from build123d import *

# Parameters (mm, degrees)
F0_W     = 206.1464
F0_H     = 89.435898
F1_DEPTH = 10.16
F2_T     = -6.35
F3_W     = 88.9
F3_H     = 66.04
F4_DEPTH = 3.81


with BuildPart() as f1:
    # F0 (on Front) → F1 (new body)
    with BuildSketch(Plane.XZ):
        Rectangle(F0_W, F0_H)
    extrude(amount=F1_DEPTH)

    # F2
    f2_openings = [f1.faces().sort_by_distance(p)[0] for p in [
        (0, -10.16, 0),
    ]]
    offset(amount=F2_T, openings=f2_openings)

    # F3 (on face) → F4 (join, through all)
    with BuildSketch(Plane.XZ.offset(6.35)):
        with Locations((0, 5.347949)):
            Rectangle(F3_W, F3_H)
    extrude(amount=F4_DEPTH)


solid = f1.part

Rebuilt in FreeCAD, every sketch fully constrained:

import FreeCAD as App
import Part
import Sketcher

V = App.Vector
Q = App.Units.Quantity


def faces_at(feature, points):
    """Names of the faces that lie closest to the given points."""
    faces = feature.Shape.Faces
    near = lambda p: min(range(len(faces)), key=lambda i: faces[i].distToShape(Part.Vertex(*p))[0])
    return sorted({f"Face{near(p) + 1}" for p in points})

doc = App.newDocument("Part")
params = doc.addObject("Spreadsheet::Sheet", "Params")
for row, (alias, value) in enumerate([
    ("sketch1_width", "8.116 in"),
    ("pad1_length", "0.4 in"),
    ("thickness_wall", "0.25 in"),
    ("sketch2_width", "3.5 in"),
    ("sketch2_height", "2.6 in"),
    ("pad2_length", "0.15 in"),
], start=1):
    params.set(f"A{row}", alias)
    params.set(f"B{row}", "=" + value)
    params.setAlias(f"B{row}", alias)

body = doc.addObject("PartDesign::Body", "Body")

# Sketch on XZ plane
sketch1 = body.newObject("Sketcher::SketchObject", "Sketch")
sketch1.AttachmentSupport = (doc.getObject("XZ_Plane"), [""])
sketch1.MapMode = "FlatFace"
sketch1.addGeometry([
    Part.LineSegment(V(-103, 45, 0), V(-103, -45, 0)),
    Part.LineSegment(V(-103, -45, 0), V(103, -45, 0)),
    Part.LineSegment(V(103, -45, 0), V(103, 45, 0)),
    Part.LineSegment(V(103, 45, 0), V(-103, 45, 0)),
], False)
sketch1.addConstraint([
    Sketcher.Constraint("Coincident", 0, 2, 1, 1),
    Sketcher.Constraint("Coincident", 1, 2, 2, 1),
    Sketcher.Constraint("Coincident", 2, 2, 3, 1),
    Sketcher.Constraint("Coincident", 3, 2, 0, 1),
    Sketcher.Constraint("Vertical", 0),
    Sketcher.Constraint("Horizontal", 1),
    Sketcher.Constraint("Vertical", 2),
    Sketcher.Constraint("Horizontal", 3),
    Sketcher.Constraint("Symmetric", 0, 2, 2, 2, -1, 1),
    Sketcher.Constraint("DistanceX", 1, 1, 1, 2, Q("8.116 in")),
    Sketcher.Constraint("DistanceY", 0, 2, 0, 1, Q("89.435898 mm")),
])
sketch1.setExpression("Constraints[9]", "Params.sketch1_width")
pad1 = body.newObject("PartDesign::Pad", "Pad")
pad1.Profile = sketch1
pad1.setExpression("Length", "Params.pad1_length")
doc.recompute()

thickness = body.newObject("PartDesign::Thickness", "Thickness")
thickness.Base = (pad1, faces_at(pad1, [(0, -10.16, 0)]))
thickness.setExpression("Value", "Params.thickness_wall")
thickness.Reversed = True
thickness.Join = "Arc"

# Sketch on XZ plane
sketch2 = body.newObject("Sketcher::SketchObject", "Sketch001")
sketch2.AttachmentSupport = (doc.getObject("XZ_Plane"), [""])
sketch2.MapMode = "FlatFace"
sketch2.AttachmentOffset = App.Placement(V(0, 0, 0.25 * 25.4), App.Rotation())
sketch2.addGeometry([
    Part.LineSegment(V(-44, 38, 0), V(-44, -28, 0)),
    Part.LineSegment(V(-44, -28, 0), V(44, -28, 0)),
    Part.LineSegment(V(44, -28, 0), V(44, 38, 0)),
    Part.LineSegment(V(44, 38, 0), V(-44, 38, 0)),
], False)
sketch2.addConstraint([
    Sketcher.Constraint("Coincident", 0, 2, 1, 1),
    Sketcher.Constraint("Coincident", 1, 2, 2, 1),
    Sketcher.Constraint("Coincident", 2, 2, 3, 1),
    Sketcher.Constraint("Coincident", 3, 2, 0, 1),
    Sketcher.Constraint("Vertical", 0),
    Sketcher.Constraint("Horizontal", 1),
    Sketcher.Constraint("Vertical", 2),
    Sketcher.Constraint("Horizontal", 3),
    Sketcher.Constraint("DistanceX", 1, 1, 1, 2, Q("3.5 in")),
    Sketcher.Constraint("DistanceY", 0, 2, 0, 1, Q("2.6 in")),
    Sketcher.Constraint("DistanceX", 0, 2, -1, 1, Q("1.75 in")),
    Sketcher.Constraint("DistanceY", 0, 2, -1, 1, Q("27.672051 mm")),
])
sketch2.setExpression("Constraints[8]", "Params.sketch2_width")
sketch2.setExpression("Constraints[9]", "Params.sketch2_height")
pad2 = body.newObject("PartDesign::Pad", "Pad001")
pad2.Profile = sketch2
pad2.setExpression("Length", "Params.pad2_length")

doc.recompute()
